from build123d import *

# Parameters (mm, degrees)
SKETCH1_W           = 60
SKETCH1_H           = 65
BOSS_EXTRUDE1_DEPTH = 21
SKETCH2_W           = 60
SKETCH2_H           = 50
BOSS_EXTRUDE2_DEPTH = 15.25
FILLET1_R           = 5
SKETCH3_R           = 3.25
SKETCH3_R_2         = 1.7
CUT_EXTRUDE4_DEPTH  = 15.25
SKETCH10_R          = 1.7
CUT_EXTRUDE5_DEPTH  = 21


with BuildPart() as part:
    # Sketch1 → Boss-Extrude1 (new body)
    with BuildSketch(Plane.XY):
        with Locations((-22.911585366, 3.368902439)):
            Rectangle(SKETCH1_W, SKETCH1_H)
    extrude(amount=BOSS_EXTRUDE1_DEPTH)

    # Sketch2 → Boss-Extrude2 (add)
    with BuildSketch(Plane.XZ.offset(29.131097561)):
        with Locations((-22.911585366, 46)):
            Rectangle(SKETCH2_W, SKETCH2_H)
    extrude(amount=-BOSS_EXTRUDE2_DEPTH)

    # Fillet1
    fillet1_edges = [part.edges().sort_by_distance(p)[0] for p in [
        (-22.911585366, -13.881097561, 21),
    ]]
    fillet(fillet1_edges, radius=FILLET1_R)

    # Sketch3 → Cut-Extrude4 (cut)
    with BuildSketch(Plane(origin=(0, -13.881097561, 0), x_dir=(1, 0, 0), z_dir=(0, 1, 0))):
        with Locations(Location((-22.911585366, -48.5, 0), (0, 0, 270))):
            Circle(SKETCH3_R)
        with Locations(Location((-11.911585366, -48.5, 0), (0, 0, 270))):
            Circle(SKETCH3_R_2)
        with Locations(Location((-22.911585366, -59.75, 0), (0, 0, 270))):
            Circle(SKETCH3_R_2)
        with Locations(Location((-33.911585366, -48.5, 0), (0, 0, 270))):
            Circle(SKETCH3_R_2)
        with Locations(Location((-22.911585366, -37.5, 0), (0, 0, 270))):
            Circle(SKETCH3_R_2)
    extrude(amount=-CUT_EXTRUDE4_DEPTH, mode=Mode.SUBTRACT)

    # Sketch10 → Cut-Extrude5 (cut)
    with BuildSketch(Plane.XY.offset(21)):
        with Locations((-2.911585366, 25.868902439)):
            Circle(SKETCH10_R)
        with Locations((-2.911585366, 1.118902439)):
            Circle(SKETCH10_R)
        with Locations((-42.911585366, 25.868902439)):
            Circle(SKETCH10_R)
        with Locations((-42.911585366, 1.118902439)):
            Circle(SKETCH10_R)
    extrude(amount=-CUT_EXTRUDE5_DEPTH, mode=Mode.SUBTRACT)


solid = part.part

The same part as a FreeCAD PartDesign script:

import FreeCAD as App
import Part
import Sketcher
from FreeCAD import Vector
Q = App.Units.Quantity


def edges_at(feature, points):
    """Names of the edges that pass closest to the given points."""
    edges = feature.Shape.Edges
    near = lambda p: min(range(len(edges)), key=lambda i: edges[i].distToShape(Part.Vertex(*p))[0])
    return sorted({f"Edge{near(p) + 1}" for p in points})

doc = App.newDocument("Part")
body = doc.addObject("PartDesign::Body", "Body")

sketch1 = body.newObject("Sketcher::SketchObject", "Sketch")
sketch1.AttachmentSupport = (doc.getObject("XY_Plane"), [""])
sketch1.MapMode = "FlatFace"
sketch1.addGeometry(Part.LineSegment(Vector(-53, 36, 0), Vector(-53, -29, 0)), False)
sketch1.addGeometry(Part.LineSegment(Vector(-53, -29, 0), Vector(7, -29, 0)), False)
sketch1.addGeometry(Part.LineSegment(Vector(7, -29, 0), Vector(7, 36, 0)), False)
sketch1.addGeometry(Part.LineSegment(Vector(7, 36, 0), Vector(-53, 36, 0)), False)
sketch1.addConstraint(Sketcher.Constraint("Coincident", 0, 2, 1, 1))
sketch1.addConstraint(Sketcher.Constraint("Coincident", 1, 2, 2, 1))
sketch1.addConstraint(Sketcher.Constraint("Coincident", 2, 2, 3, 1))
sketch1.addConstraint(Sketcher.Constraint("Coincident", 3, 2, 0, 1))
sketch1.addConstraint(Sketcher.Constraint("Vertical", 0))
sketch1.addConstraint(Sketcher.Constraint("Horizontal", 1))
sketch1.addConstraint(Sketcher.Constraint("Vertical", 2))
sketch1.addConstraint(Sketcher.Constraint("Horizontal", 3))
sketch1.addConstraint(Sketcher.Constraint("DistanceX", 1, 1, 1, 2, Q("60 mm")))
sketch1.addConstraint(Sketcher.Constraint("DistanceY", 0, 2, 0, 1, Q("65 mm")))
sketch1.addConstraint(Sketcher.Constraint("DistanceX", 0, 2, -1, 1, Q("52.911585 mm")))
sketch1.addConstraint(Sketcher.Constraint("DistanceY", 0, 2, -1, 1, Q("29.131098 mm")))
pad1 = body.newObject("PartDesign::Pad", "Pad")
pad1.Profile = sketch1
pad1.Length = 21

sketch2 = body.newObject("Sketcher::SketchObject", "Sketch001")
sketch2.AttachmentSupport = (doc.getObject("XZ_Plane"), [""])
sketch2.MapMode = "FlatFace"
sketch2.AttachmentOffset = App.Placement(Vector(0, 0, 29.131098), App.Rotation())
sketch2.addGeometry(Part.LineSegment(Vector(-53, 71, 0), Vector(-53, 21, 0)), False)
sketch2.addGeometry(Part.LineSegment(Vector(-53, 21, 0), Vector(7, 21, 0)), False)
sketch2.addGeometry(Part.LineSegment(Vector(7, 21, 0), Vector(7, 71, 0)), False)
sketch2.addGeometry(Part.LineSegment(Vector(7, 71, 0), Vector(-53, 71, 0)), False)
sketch2.addConstraint(Sketcher.Constraint("Coincident", 0, 2, 1, 1))
sketch2.addConstraint(Sketcher.Constraint("Coincident", 1, 2, 2, 1))
sketch2.addConstraint(Sketcher.Constraint("Coincident", 2, 2, 3, 1))
sketch2.addConstraint(Sketcher.Constraint("Coincident", 3, 2, 0, 1))
sketch2.addConstraint(Sketcher.Constraint("Vertical", 0))
sketch2.addConstraint(Sketcher.Constraint("Horizontal", 1))
sketch2.addConstraint(Sketcher.Constraint("Vertical", 2))
sketch2.addConstraint(Sketcher.Constraint("Horizontal", 3))
sketch2.addConstraint(Sketcher.Constraint("DistanceX", 1, 1, 1, 2, Q("60 mm")))
sketch2.addConstraint(Sketcher.Constraint("DistanceY", 0, 2, 0, 1, Q("50 mm")))
sketch2.addConstraint(Sketcher.Constraint("DistanceY", -1, 1, 0, 2, Q("21 mm")))
sketch2.addConstraint(Sketcher.Constraint("DistanceX", 0, 2, -1, 1, Q("52.911585 mm")))
pad2 = body.newObject("PartDesign::Pad", "Pad001")
pad2.Profile = sketch2
pad2.Length = 15.25
pad2.Reversed = True
doc.recompute()

fillet = body.newObject("PartDesign::Fillet", "Fillet")
fillet.Base = (pad2, edges_at(pad2, [(-22.912, -13.881, 21)]))
fillet.Radius = 5

sketch3 = body.newObject("Sketcher::SketchObject", "Sketch002")
sketch3.AttachmentSupport = (doc.getObject("XZ_Plane"), [""])
sketch3.MapMode = "FlatFace"
sketch3.AttachmentOffset = App.Placement(Vector(0, 0, 13.881098), App.Rotation())
sketch3.addGeometry(Part.Circle(Vector(-22.9, 48.5, 0), Vector(0, 0, 1), 3.2), False)
sketch3.addGeometry(Part.Circle(Vector(-11.9, 48.5, 0), Vector(0, 0, 1), 1.7), False)
sketch3.addGeometry(Part.Circle(Vector(-22.9, 59.8, 0), Vector(0, 0, 1), 1.7), False)
sketch3.addGeometry(Part.Circle(Vector(-33.9, 48.5, 0), Vector(0, 0, 1), 1.7), False)
sketch3.addGeometry(Part.Circle(Vector(-22.9, 37.5, 0), Vector(0, 0, 1), 1.7), False)
sketch3.addConstraint(Sketcher.Constraint("Equal", 1, 2))
sketch3.addConstraint(Sketcher.Constraint("Equal", 2, 3))
sketch3.addConstraint(Sketcher.Constraint("Equal", 3, 4))
sketch3.addConstraint(Sketcher.Constraint("Horizontal", 0, 3, 1, 3))
sketch3.addConstraint(Sketcher.Constraint("Horizontal", 1, 3, 3, 3))
sketch3.addConstraint(Sketcher.Constraint("Vertical", 0, 3, 2, 3))
sketch3.addConstraint(Sketcher.Constraint("Vertical", 2, 3, 4, 3))
sketch3.addConstraint(Sketcher.Constraint("Diameter", 0, Q("6.5 mm")))
sketch3.addConstraint(Sketcher.Constraint("Diameter", 1, Q("3.4 mm")))
sketch3.addConstraint(Sketcher.Constraint("DistanceX", 0, 3, 1, 3, Q("11 mm")))
sketch3.addConstraint(Sketcher.Constraint("DistanceX", 3, 3, 0, 3, Q("11 mm")))
sketch3.addConstraint(Sketcher.Constraint("DistanceY", 4, 3, 0, 3, Q("11 mm")))
sketch3.addConstraint(Sketcher.Constraint("DistanceY", -1, 1, 0, 3, Q("48.5 mm")))
sketch3.addConstraint(Sketcher.Constraint("DistanceY", -1, 1, 2, 3, Q("59.75 mm")))
sketch3.addConstraint(Sketcher.Constraint("DistanceX", 0, 3, -1, 1, Q("22.911585 mm")))
pocket1 = body.newObject("PartDesign::Pocket", "Pocket")
pocket1.Profile = sketch3
pocket1.Length = 15.25
pocket1.Reversed = True

sketch4 = body.newObject("Sketcher::SketchObject", "Sketch003")
sketch4.AttachmentSupport = (doc.getObject("XY_Plane"), [""])
sketch4.MapMode = "FlatFace"
sketch4.AttachmentOffset = App.Placement(Vector(0, 0, 21), App.Rotation())
sketch4.addGeometry(Part.Circle(Vector(-2.9, 25.9, 0), Vector(0, 0, 1), 1.7), False)
sketch4.addGeometry(Part.Circle(Vector(-2.9, 1.1, 0), Vector(0, 0, 1), 1.7), False)
sketch4.addGeometry(Part.Circle(Vector(-42.9, 25.9, 0), Vector(0, 0, 1), 1.7), False)
sketch4.addGeometry(Part.Circle(Vector(-42.9, 1.1, 0), Vector(0, 0, 1), 1.7), False)
sketch4.addConstraint(Sketcher.Constraint("Equal", 0, 1))
sketch4.addConstraint(Sketcher.Constraint("Equal", 1, 2))
sketch4.addConstraint(Sketcher.Constraint("Equal", 2, 3))
sketch4.addConstraint(Sketcher.Constraint("Horizontal", 0, 3, 2, 3))
sketch4.addConstraint(Sketcher.Constraint("Horizontal", 1, 3, 3, 3))
sketch4.addConstraint(Sketcher.Constraint("Vertical", 0, 3, 1, 3))
sketch4.addConstraint(Sketcher.Constraint("Vertical", 2, 3, 3, 3))
sketch4.addConstraint(Sketcher.Constraint("Diameter", 0, Q("3.4 mm")))
sketch4.addConstraint(Sketcher.Constraint("DistanceX", 2, 3, 0, 3, Q("40 mm")))
sketch4.addConstraint(Sketcher.Constraint("DistanceY", 1, 3, 0, 3, Q("24.75 mm")))
sketch4.addConstraint(Sketcher.Constraint("DistanceX", 0, 3, -1, 1, Q("2.911585 mm")))
sketch4.addConstraint(Sketcher.Constraint("DistanceY", -1, 1, 0, 3, Q("25.868902 mm")))
pocket2 = body.newObject("PartDesign::Pocket", "Pocket001")
pocket2.Profile = sketch4
pocket2.Length = 21

doc.recompute()
